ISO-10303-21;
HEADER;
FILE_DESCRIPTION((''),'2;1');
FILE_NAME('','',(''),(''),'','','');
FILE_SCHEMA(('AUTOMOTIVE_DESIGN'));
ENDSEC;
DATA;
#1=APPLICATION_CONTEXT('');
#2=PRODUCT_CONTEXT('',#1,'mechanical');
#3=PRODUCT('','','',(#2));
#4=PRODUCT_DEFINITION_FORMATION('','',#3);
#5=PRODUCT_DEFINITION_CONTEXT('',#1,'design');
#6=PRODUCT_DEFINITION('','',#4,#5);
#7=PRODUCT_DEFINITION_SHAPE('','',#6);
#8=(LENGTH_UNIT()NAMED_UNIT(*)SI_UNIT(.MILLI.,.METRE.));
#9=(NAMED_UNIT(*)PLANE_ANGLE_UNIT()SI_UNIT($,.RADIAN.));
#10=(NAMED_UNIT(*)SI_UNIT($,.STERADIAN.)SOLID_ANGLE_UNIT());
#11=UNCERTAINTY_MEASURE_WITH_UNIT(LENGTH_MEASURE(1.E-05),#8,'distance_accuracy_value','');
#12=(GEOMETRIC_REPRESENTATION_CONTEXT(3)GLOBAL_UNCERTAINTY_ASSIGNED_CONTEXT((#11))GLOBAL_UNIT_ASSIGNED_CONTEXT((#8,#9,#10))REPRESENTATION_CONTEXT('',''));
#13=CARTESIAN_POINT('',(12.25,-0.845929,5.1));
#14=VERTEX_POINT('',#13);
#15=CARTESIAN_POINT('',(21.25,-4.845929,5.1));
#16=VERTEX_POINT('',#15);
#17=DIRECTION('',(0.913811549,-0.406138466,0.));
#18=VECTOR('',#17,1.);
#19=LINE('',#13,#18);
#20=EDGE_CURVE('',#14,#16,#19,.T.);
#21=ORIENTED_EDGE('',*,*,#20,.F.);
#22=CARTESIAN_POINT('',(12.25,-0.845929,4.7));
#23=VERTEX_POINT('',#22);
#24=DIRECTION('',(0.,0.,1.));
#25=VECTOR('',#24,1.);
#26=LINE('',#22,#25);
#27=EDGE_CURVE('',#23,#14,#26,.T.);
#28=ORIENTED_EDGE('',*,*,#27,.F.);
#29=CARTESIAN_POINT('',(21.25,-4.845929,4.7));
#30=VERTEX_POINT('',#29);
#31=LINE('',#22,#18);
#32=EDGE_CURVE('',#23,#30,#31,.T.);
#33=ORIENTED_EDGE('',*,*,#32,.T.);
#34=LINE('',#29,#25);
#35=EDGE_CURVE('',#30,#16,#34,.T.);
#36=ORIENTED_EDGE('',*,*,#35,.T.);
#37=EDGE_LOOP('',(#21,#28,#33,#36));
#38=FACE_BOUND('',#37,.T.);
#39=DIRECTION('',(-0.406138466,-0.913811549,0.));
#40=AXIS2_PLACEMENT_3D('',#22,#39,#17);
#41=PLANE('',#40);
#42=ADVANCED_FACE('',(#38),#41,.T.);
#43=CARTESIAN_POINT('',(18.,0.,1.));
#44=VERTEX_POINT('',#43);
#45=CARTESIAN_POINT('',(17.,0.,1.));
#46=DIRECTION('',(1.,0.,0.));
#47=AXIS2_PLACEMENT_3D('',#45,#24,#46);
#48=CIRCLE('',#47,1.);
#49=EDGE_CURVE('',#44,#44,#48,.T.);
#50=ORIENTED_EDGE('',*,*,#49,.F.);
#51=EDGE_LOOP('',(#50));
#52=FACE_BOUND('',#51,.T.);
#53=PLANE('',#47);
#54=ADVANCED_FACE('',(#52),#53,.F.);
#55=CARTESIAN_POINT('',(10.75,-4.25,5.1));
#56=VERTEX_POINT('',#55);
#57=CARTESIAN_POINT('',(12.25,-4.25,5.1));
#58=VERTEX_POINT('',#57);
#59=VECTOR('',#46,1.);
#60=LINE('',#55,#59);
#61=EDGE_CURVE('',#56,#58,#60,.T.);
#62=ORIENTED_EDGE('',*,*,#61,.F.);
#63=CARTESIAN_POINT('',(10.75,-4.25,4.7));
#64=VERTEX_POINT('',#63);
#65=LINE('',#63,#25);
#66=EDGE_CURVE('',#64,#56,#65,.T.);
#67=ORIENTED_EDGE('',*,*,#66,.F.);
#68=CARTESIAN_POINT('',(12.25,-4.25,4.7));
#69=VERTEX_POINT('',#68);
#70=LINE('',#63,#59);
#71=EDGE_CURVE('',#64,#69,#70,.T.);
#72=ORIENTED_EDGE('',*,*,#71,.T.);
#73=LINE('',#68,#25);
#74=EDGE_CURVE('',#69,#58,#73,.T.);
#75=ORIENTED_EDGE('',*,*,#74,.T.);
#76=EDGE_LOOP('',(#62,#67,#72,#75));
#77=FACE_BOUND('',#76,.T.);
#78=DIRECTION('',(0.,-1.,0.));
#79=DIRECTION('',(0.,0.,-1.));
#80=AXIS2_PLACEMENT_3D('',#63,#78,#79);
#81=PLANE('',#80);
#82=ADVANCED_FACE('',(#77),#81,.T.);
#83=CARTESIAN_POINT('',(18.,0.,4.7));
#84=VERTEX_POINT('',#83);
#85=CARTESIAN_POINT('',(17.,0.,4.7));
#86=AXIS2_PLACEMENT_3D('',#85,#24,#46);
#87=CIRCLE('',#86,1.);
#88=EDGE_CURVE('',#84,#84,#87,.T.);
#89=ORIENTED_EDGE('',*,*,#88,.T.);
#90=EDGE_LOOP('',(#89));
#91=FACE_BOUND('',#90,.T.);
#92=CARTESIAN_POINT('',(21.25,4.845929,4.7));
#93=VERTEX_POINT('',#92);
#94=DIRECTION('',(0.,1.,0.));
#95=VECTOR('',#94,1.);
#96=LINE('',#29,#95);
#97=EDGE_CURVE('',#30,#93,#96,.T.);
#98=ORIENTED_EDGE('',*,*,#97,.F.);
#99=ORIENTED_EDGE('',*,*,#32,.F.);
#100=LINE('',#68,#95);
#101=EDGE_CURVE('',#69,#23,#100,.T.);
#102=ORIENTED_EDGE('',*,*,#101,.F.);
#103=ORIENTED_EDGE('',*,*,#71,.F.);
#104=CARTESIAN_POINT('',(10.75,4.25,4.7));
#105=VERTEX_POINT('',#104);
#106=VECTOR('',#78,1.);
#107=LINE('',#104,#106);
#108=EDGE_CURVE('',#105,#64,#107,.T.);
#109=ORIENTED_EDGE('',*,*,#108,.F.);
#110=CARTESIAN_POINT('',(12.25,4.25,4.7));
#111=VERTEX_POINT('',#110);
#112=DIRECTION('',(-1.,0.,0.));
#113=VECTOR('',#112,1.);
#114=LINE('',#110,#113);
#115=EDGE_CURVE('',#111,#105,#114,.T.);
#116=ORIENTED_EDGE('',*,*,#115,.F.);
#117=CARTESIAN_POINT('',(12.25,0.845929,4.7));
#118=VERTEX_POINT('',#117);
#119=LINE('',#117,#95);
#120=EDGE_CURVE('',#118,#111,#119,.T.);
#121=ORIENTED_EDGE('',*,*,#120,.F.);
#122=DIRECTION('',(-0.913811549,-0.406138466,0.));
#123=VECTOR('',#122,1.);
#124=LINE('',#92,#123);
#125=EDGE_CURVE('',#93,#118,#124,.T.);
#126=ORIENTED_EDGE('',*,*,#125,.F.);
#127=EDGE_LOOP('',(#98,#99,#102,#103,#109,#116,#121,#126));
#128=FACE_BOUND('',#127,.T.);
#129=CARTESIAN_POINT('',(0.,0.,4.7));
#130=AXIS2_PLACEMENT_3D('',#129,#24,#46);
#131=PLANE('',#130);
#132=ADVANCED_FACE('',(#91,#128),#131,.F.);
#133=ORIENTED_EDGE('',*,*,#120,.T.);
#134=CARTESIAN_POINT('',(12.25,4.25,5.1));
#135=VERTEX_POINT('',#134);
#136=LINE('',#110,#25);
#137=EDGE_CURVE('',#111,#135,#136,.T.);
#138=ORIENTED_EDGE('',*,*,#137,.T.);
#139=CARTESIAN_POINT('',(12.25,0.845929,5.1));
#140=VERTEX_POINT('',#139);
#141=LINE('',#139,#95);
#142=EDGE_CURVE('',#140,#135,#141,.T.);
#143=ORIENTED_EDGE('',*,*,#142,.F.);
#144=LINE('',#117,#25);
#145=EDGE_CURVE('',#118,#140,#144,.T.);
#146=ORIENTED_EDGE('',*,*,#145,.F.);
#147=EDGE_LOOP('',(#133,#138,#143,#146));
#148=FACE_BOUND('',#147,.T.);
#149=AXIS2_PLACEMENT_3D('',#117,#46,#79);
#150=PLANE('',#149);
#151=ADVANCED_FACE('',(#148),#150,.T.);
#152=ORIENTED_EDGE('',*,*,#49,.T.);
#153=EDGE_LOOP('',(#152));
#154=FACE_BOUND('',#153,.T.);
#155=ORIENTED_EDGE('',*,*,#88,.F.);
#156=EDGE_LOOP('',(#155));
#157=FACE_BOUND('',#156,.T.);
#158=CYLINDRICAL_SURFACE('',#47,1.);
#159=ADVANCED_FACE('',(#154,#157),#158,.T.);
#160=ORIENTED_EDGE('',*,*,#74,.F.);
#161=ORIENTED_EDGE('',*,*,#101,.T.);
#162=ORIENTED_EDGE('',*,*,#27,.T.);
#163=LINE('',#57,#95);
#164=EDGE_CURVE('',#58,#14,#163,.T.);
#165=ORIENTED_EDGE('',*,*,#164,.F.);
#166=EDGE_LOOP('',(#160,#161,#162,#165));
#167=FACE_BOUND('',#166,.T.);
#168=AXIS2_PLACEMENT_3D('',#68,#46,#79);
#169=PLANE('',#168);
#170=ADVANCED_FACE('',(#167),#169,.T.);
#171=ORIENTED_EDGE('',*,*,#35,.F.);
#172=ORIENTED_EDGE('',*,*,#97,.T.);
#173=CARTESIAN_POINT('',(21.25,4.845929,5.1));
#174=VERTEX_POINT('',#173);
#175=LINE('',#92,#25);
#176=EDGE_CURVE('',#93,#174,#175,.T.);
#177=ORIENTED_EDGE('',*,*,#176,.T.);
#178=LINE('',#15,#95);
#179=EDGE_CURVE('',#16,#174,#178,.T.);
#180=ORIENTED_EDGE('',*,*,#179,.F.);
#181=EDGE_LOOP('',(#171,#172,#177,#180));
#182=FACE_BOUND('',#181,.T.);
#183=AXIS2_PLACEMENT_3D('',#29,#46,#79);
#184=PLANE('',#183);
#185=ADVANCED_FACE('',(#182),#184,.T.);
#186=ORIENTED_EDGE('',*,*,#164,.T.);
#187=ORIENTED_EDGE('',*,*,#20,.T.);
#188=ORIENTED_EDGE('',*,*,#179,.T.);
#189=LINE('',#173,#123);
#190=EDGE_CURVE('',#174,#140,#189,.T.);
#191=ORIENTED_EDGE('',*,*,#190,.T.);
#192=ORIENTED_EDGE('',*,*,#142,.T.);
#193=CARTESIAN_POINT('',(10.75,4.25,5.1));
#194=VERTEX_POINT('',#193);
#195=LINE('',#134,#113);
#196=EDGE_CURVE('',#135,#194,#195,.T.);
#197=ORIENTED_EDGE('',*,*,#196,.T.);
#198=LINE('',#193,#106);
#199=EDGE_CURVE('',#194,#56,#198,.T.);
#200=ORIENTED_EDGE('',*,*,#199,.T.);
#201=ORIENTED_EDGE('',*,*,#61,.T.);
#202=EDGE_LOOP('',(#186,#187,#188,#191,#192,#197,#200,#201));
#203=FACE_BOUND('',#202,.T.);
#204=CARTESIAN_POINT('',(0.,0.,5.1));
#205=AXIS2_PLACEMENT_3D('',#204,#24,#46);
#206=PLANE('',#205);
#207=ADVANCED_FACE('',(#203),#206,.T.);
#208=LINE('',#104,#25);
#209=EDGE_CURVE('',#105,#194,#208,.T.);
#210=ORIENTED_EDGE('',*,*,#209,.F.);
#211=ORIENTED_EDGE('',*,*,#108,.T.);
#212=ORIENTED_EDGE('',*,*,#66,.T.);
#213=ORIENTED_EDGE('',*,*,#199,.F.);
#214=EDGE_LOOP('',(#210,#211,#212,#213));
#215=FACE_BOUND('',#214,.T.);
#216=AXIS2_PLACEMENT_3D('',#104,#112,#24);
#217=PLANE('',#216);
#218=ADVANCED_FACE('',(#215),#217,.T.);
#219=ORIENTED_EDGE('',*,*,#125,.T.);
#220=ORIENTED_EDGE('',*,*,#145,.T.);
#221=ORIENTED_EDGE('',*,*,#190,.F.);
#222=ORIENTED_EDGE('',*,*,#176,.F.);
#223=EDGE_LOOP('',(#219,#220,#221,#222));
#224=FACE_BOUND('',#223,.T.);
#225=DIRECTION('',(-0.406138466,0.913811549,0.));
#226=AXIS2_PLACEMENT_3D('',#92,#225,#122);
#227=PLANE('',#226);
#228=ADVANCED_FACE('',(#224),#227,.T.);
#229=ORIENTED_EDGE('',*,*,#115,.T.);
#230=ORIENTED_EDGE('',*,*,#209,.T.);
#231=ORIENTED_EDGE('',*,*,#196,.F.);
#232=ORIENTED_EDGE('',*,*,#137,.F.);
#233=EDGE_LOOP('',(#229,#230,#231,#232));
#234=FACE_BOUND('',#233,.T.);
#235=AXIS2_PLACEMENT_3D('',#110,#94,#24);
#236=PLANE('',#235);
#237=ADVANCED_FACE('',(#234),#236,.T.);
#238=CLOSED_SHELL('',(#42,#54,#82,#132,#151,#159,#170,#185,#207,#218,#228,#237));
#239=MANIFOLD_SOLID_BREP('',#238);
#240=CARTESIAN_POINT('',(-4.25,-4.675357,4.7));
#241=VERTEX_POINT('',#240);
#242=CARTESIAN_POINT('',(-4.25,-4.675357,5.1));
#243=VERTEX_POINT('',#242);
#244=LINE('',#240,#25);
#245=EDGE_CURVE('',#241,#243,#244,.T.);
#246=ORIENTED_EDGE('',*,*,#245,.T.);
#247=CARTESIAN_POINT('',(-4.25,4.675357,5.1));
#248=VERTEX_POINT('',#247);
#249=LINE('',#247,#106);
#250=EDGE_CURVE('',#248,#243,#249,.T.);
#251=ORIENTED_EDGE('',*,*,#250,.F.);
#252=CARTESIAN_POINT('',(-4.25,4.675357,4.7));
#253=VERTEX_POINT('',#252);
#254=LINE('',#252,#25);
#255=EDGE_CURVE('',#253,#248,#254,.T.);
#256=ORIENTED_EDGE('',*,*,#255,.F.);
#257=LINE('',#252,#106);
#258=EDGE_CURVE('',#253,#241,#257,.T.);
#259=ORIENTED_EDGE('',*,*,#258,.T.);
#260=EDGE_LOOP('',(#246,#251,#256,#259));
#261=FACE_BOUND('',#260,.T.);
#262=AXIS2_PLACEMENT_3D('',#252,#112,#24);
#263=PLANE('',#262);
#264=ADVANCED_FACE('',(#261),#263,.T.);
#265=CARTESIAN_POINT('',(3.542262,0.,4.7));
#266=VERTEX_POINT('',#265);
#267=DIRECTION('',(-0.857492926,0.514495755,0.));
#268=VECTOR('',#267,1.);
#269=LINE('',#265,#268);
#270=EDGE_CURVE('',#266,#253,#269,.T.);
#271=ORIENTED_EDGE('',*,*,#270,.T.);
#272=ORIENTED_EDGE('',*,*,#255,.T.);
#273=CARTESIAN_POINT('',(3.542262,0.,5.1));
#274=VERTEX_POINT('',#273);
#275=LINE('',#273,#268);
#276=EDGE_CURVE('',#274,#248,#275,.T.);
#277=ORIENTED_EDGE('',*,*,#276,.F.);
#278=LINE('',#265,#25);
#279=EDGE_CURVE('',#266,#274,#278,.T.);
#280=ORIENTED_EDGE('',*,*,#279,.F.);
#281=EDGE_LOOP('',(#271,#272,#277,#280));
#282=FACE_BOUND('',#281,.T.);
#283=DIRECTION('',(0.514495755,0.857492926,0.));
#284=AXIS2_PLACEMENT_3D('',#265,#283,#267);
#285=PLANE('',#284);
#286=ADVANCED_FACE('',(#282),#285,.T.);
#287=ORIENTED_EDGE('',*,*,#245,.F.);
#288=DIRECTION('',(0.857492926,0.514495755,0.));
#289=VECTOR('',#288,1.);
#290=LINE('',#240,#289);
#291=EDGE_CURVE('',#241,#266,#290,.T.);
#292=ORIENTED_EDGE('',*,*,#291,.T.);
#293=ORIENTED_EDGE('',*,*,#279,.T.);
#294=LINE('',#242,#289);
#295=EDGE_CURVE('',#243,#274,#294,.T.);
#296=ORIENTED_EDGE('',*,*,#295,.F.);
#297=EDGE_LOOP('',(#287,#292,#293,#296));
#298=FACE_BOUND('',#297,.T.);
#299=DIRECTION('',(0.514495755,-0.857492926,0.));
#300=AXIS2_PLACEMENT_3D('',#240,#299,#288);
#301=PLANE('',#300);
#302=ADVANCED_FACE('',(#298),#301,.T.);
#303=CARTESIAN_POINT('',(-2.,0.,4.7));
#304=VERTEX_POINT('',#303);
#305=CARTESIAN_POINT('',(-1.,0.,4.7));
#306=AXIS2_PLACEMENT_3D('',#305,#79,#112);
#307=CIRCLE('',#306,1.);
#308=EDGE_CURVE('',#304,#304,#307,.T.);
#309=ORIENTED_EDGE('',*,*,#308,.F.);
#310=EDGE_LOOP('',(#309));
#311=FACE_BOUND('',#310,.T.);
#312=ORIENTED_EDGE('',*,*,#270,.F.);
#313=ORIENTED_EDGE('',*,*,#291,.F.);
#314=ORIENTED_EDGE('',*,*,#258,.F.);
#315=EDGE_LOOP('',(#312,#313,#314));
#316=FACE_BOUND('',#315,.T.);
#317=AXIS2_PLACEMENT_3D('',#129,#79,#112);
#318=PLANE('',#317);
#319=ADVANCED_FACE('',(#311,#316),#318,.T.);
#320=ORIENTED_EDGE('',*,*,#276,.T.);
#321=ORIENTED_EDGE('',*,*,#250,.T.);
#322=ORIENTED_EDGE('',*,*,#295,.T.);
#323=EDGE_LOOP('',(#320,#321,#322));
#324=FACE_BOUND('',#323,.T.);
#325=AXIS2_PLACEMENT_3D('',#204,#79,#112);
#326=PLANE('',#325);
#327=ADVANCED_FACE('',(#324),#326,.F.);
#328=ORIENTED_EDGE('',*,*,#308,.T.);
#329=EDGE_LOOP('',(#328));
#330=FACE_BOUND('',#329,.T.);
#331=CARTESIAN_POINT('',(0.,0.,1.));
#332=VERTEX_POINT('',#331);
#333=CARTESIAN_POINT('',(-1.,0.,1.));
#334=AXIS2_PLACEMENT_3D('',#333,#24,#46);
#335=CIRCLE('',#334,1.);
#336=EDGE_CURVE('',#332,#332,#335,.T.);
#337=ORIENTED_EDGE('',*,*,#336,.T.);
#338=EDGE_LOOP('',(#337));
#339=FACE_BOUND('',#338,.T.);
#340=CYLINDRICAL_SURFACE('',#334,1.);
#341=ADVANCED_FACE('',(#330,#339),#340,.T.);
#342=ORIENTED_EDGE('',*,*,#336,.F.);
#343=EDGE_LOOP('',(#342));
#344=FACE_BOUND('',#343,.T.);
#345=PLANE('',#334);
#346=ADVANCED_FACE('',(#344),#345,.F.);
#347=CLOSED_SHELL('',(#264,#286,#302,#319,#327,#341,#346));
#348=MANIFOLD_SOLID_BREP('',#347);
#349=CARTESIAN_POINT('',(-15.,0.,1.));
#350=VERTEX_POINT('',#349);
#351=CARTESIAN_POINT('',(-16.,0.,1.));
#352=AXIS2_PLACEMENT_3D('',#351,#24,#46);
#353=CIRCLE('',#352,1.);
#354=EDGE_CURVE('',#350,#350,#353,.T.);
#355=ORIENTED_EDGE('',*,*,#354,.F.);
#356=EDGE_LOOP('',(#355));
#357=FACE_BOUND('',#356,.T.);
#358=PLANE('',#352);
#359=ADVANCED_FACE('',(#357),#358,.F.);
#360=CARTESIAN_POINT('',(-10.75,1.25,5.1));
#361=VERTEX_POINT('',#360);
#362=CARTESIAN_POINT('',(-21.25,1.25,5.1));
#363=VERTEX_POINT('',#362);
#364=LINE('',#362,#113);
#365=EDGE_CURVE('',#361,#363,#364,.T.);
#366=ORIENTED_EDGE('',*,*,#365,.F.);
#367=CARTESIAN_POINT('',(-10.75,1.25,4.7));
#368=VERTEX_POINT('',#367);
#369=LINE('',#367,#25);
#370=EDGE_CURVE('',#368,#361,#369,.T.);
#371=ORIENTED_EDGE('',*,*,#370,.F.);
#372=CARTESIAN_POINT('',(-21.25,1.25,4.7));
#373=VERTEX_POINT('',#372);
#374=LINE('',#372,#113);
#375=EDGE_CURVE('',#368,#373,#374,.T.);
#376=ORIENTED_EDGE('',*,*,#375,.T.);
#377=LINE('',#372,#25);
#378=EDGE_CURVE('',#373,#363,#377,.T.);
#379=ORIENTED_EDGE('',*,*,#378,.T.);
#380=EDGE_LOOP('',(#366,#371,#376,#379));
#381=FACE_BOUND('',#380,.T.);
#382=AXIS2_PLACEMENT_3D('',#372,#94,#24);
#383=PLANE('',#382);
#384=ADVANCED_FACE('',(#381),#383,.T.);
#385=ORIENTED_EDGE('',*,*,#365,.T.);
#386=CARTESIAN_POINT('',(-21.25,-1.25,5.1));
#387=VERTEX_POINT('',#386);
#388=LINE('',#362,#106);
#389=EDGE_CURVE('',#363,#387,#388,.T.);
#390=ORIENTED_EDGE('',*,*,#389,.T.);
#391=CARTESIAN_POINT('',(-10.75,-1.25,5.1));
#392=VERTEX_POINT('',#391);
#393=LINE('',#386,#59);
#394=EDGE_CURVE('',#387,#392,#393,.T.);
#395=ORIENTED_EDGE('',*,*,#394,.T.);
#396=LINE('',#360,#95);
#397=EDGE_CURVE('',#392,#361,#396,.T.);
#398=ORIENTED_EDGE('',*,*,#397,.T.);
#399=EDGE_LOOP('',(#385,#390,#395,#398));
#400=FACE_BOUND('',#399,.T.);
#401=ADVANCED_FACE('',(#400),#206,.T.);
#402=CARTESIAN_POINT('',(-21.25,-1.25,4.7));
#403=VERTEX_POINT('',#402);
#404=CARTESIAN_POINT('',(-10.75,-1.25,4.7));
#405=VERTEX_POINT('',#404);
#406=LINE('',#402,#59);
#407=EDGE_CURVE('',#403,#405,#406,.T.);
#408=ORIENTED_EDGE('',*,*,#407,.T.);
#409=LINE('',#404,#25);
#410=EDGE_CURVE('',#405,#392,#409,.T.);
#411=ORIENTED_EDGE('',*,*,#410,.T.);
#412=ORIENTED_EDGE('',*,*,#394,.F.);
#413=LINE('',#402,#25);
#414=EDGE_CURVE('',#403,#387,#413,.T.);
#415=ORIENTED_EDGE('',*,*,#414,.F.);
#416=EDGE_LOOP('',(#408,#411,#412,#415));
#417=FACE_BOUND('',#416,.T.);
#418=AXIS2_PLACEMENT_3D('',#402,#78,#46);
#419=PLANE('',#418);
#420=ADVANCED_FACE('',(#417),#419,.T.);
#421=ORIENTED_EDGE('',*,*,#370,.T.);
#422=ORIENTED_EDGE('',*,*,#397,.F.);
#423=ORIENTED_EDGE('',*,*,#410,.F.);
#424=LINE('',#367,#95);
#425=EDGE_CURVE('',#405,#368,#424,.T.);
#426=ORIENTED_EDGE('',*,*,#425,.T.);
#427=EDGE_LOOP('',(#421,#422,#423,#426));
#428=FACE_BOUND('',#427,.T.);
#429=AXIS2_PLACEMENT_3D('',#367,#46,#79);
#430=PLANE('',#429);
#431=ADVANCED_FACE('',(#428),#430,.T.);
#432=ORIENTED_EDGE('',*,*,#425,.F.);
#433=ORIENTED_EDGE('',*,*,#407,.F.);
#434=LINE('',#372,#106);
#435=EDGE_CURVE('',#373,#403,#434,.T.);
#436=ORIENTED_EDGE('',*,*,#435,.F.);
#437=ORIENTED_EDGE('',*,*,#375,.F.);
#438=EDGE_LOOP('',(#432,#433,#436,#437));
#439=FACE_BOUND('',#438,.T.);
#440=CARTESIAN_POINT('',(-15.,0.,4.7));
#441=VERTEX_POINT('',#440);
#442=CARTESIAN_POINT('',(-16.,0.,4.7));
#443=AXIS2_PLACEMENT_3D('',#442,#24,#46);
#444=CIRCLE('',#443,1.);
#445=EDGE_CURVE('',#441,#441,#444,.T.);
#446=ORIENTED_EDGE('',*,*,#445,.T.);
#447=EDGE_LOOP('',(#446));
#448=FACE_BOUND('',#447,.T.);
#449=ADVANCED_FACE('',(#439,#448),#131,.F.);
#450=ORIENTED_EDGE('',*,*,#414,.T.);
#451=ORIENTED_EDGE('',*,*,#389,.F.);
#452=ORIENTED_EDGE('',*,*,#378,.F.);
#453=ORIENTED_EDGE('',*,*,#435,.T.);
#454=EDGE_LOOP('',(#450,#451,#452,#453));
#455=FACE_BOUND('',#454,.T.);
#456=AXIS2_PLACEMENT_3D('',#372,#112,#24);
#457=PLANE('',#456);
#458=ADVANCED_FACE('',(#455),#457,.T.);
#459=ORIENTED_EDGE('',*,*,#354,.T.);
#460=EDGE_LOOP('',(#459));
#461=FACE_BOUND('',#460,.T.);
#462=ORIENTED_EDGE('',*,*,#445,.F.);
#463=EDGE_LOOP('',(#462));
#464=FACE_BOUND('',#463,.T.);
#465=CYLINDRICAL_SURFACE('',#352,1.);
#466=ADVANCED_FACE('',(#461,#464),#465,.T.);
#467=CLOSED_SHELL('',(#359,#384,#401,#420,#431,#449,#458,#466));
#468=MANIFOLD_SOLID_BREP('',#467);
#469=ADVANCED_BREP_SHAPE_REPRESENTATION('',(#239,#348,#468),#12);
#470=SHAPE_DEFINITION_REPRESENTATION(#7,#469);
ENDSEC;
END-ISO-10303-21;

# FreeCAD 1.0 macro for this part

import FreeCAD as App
import Part
import Sketcher


def add_polygon(sketch, points):
    """Adds a closed chain of lines whose ends are joined by coincident constraints."""
    first, n = sketch.GeometryCount, len(points)
    for a, b in zip(points, points[1:] + points[:1]):
        sketch.addGeometry(Part.LineSegment(App.Vector(*a, 0), App.Vector(*b, 0)), False)
    for i in range(n):
        sketch.addConstraint(Sketcher.Constraint("Coincident", first + i, 2, first + (i + 1) % n, 1))

doc = App.newDocument("Part")
body = doc.addObject("PartDesign::Body", "Body")

# Sketch on XY plane
sketch1 = body.newObject("Sketcher::SketchObject", "Sketch")
sketch1.AttachmentSupport = (doc.getObject("XY_Plane"), [""])
sketch1.MapMode = "FlatFace"
sketch1.AttachmentOffset = App.Placement(App.Vector(0, 0, 5), App.Rotation())
add_polygon(sketch1, [(-4.25, 4.675357), (-4.25, -4.675357), (3.542262, 0)])  # lines 0-2
sketch1.addConstraint([
    Sketcher.Constraint("Vertical", 0),
    Sketcher.Constraint("PointOnObject", 1, 2, -1),
    Sketcher.Constraint("Equal", 1, 2),
    Sketcher.Constraint("DistanceX", 0, 2, -1, 1, 4.25),
    Sketcher.Constraint("Distance", 1, 9.087261),
    Sketcher.Constraint("DistanceY", 0, 2, 0, 1, 9.350714),
])
pad1 = body.newObject("PartDesign::Pad", "Pad")
pad1.Profile = sketch1
pad1.Type = "TwoLengths"
pad1.Length = 0.1
pad1.Length2 = 0.3
body2 = doc.addObject("PartDesign::Body", "Body001")

# Sketch on XY plane
sketch2 = body2.newObject("Sketcher::SketchObject", "Sketch001")
sketch2.AttachmentSupport = (doc.getObject("XY_Plane001"), [""])
sketch2.MapMode = "FlatFace"
sketch2.AttachmentOffset = App.Placement(App.Vector(0, 0, 5), App.Rotation())
add_polygon(sketch2, [(10.75, 4.25), (10.75, -4.25), (12.25, -4.25), (12.25, -0.845929), (21.25, -4.845929), (21.25, 4.845929), (12.25, 0.845929), (12.25, 4.25)])  # lines 0-7
sketch2.addConstraint([
    Sketcher.Constraint("Vertical", 0),
    Sketcher.Constraint("Horizontal", 1),
    Sketcher.Constraint("Vertical", 2),
    Sketcher.Constraint("Vertical", 4),
    Sketcher.Constraint("Vertical", 6),
    Sketcher.Constraint("Horizontal", 7),
    Sketcher.Constraint("Symmetric", 2, 2, 5, 2, -1),
    Sketcher.Constraint("Equal", 2, 6),
    Sketcher.Constraint("Equal", 3, 5),
    Sketcher.Constraint("DistanceX", 1, 1, 1, 2, 1.5),
    Sketcher.Constraint("DistanceY", 0, 2, 0, 1, 8.5),
    Sketcher.Constraint("DistanceX", 1, 2, 3, 2, 9.0),
    Sketcher.Constraint("DistanceY", 3, 2, 2, 2, 4.0),
    Sketcher.Constraint("DistanceX", -1, 1, 0, 2, 10.75),
    Sketcher.Constraint("DistanceY", 2, 1, 2, 2, 3.404071),
])
pad2 = body2.newObject("PartDesign::Pad", "Pad001")
pad2.Profile = sketch2
pad2.Type = "TwoLengths"
pad2.Length = 0.1
pad2.Length2 = 0.3
body3 = doc.addObject("PartDesign::Body", "Body002")

# Sketch on XY plane
sketch3 = body3.newObject("Sketcher::SketchObject", "Sketch002")
sketch3.AttachmentSupport = (doc.getObject("XY_Plane002"), [""])
sketch3.MapMode = "FlatFace"
sketch3.AttachmentOffset = App.Placement(App.Vector(0, 0, 5), App.Rotation())
add_polygon(sketch3, [(-21.25, 1.25), (-21.25, -1.25), (-10.75, -1.25), (-10.75, 1.25)])  # lines 0-3
sketch3.addConstraint([
    Sketcher.Constraint("Vertical", 0),
    Sketcher.Constraint("Horizontal", 1),
    Sketcher.Constraint("Vertical", 2),
    Sketcher.Constraint("Horizontal", 3),
    Sketcher.Constraint("DistanceX", 1, 1, 1, 2, 10.5),
    Sketcher.Constraint("DistanceY", 0, 2, 0, 1, 2.5),
    Sketcher.Constraint("DistanceX", 0, 2, -1, 1, 21.25),
    Sketcher.Constraint("DistanceY", 0, 2, -1, 1, 1.25),
])
pad3 = body3.newObject("PartDesign::Pad", "Pad002")
pad3.Profile = sketch3
pad3.Type = "TwoLengths"
pad3.Length = 0.1
pad3.Length2 = 0.3
body.AllowCompound = True
doc.recompute()

boolean = body.newObject("PartDesign::Boolean", "Boolean")
boolean.Type = "Fuse"
boolean.addObjects([body2])
doc.recompute()

boolean2 = body.newObject("PartDesign::Boolean", "Boolean001")
boolean2.Type = "Fuse"
boolean2.addObjects([body3])

# Sketch on XY plane
sketch4 = body.newObject("Sketcher::SketchObject", "Sketch003")
sketch4.AttachmentSupport = (doc.getObject("XY_Plane"), [""])
sketch4.MapMode = "FlatFace"
sketch4.AttachmentOffset = App.Placement(App.Vector(0, 0, 5), App.Rotation())
sketch4.addGeometry([
    Part.Circle(App.Vector(-16, 0, 0), App.Vector(0, 0, 1), 1),
    Part.Circle(App.Vector(-1, 0, 0), App.Vector(0, 0, 1), 1),
    Part.Circle(App.Vector(17, 0, 0), App.Vector(0, 0, 1), 1),
], False)
sketch4.addConstraint([
    Sketcher.Constraint("Equal", 0, 1),
    Sketcher.Constraint("Equal", 1, 2),
    Sketcher.Constraint("PointOnObject", 0, 3, -1),
    Sketcher.Constraint("PointOnObject", 1, 3, -1),
    Sketcher.Constraint("PointOnObject", 2, 3, -1),
    Sketcher.Constraint("Diameter", 0, 2.0),
    Sketcher.Constraint("DistanceX", 0, 3, -1, 1, 16.0),
    Sketcher.Constraint("DistanceX", 1, 3, -1, 1, 1.0),
    Sketcher.Constraint("DistanceX", -1, 1, 2, 3, 17.0),
])
pad4 = body.newObject("PartDesign::Pad", "Pad003")
pad4.Profile = sketch4
pad4.Length = 4
pad4.Reversed = True

doc.recompute()
